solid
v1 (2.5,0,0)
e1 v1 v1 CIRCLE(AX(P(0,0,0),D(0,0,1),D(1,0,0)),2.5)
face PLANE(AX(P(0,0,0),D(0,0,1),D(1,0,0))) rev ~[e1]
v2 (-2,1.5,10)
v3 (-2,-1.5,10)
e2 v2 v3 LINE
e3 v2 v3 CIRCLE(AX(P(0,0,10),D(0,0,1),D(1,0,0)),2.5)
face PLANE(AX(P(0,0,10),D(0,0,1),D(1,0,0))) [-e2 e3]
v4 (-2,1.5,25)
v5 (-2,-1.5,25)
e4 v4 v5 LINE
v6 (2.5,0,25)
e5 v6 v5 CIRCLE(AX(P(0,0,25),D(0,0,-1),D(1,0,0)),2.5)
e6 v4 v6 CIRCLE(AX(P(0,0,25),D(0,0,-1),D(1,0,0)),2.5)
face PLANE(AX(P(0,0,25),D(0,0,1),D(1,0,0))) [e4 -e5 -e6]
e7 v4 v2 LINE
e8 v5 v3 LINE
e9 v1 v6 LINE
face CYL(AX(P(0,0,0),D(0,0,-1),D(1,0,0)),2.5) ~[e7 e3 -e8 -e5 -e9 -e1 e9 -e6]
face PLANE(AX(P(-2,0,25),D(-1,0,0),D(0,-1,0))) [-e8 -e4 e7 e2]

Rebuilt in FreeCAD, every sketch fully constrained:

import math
import FreeCAD as App
import Part
import Sketcher

V = App.Vector
Q = App.Units.Quantity

doc = App.newDocument("Part")
body = doc.addObject("PartDesign::Body", "Body")

sketch1 = body.newObject("Sketcher::SketchObject", "Sketch")
sketch1.AttachmentSupport = (doc.getObject("XY_Plane"), [""])
sketch1.MapMode = "FlatFace"
sketch1.addGeometry(Part.Circle(V(0, 0, 0), V(0, 0, 1), 2.5), False)
sketch1.addConstraint([
    Sketcher.Constraint("Coincident", 0, 3, -1, 1),
    Sketcher.Constraint("Diameter", 0, Q("5 mm")),
])
pad1 = body.newObject("PartDesign::Pad", "Pad")
pad1.Profile = sketch1
pad1.Length = 25

sketch2 = body.newObject("Sketcher::SketchObject", "Sketch001")
sketch2.AttachmentSupport = (doc.getObject("XY_Plane"), [""])
sketch2.MapMode = "FlatFace"
sketch2.AttachmentOffset = App.Placement(V(0, 0, 25), App.Rotation())
sketch2.addGeometry([
    Part.ArcOfCircle(Part.Circle(V(0, 0, 0), V(0, 0, 1), 2.5), math.radians(143.130102), math.radians(216.869898)),
    Part.LineSegment(V(-2, 1.5, 0), V(-2, 4, 0)),
    Part.LineSegment(V(-2, 4, 0), V(-6, 4, 0)),
    Part.LineSegment(V(-6, 4, 0), V(-6, -4, 0)),
    Part.LineSegment(V(-6, -4, 0), V(-2, -4, 0)),
    Part.LineSegment(V(-2, -4, 0), V(-2, -1.5, 0)),
], False)
sketch2.addConstraint([
    Sketcher.Constraint("Coincident", 0, 1, 1, 1),
    Sketcher.Constraint("Coincident", 1, 2, 2, 1),
    Sketcher.Constraint("Coincident", 2, 2, 3, 1),
    Sketcher.Constraint("Coincident", 3, 2, 4, 1),
    Sketcher.Constraint("Coincident", 4, 2, 5, 1),
    Sketcher.Constraint("Coincident", 5, 2, 0, 2),
    Sketcher.Constraint("Vertical", 1),
    Sketcher.Constraint("Horizontal", 2),
    Sketcher.Constraint("Vertical", 3),
    Sketcher.Constraint("Horizontal", 4),
    Sketcher.Constraint("Vertical", 5),
    Sketcher.Constraint("Coincident", 0, 3, -1, 1),
    Sketcher.Constraint("Symmetric", 1, 2, 4, 2, -1),
    Sketcher.Constraint("DistanceX", 2, 2, 2, 1, Q("4 mm")),
    Sketcher.Constraint("DistanceY", -1, 1, 1, 2, Q("4 mm")),
    Sketcher.Constraint("Radius", 0, Q("2.5 mm")),
    Sketcher.Constraint("DistanceY", 1, 1, 1, 2, Q("2.5 mm")),
])
pocket1 = body.newObject("PartDesign::Pocket", "Pocket")
pocket1.Profile = sketch2
pocket1.Length = 15

sketch3 = body.newObject("Sketcher::SketchObject", "Sketch002")
sketch3.AttachmentSupport = (doc.getObject("XY_Plane"), [""])
sketch3.MapMode = "FlatFace"
sketch3.AttachmentOffset = App.Placement(V(0, 0, 25), App.Rotation())
sketch3.addGeometry([
    Part.LineSegment(V(-2, -1.5, 0), V(-2, 1.5, 0)),
    Part.ArcOfCircle(Part.Circle(V(0, 0, 0), V(0, 0, 1), 2.5), math.radians(143.130102), math.radians(216.869898)),
], False)
sketch3.addConstraint([
    Sketcher.Constraint("Coincident", 0, 1, 1, 2),
    Sketcher.Constraint("Coincident", 1, 1, 0, 2),
    Sketcher.Constraint("Vertical", 0),
    Sketcher.Constraint("Coincident", 1, 3, -1, 1),
    Sketcher.Constraint("Radius", 1, Q("2.5 mm")),
    Sketcher.Constraint("DistanceY", 0, 1, 0, 2, Q("3 mm")),
])
pocket2 = body.newObject("PartDesign::Pocket", "Pocket001")
pocket2.Profile = sketch3
pocket2.Length = 15

doc.recompute()
